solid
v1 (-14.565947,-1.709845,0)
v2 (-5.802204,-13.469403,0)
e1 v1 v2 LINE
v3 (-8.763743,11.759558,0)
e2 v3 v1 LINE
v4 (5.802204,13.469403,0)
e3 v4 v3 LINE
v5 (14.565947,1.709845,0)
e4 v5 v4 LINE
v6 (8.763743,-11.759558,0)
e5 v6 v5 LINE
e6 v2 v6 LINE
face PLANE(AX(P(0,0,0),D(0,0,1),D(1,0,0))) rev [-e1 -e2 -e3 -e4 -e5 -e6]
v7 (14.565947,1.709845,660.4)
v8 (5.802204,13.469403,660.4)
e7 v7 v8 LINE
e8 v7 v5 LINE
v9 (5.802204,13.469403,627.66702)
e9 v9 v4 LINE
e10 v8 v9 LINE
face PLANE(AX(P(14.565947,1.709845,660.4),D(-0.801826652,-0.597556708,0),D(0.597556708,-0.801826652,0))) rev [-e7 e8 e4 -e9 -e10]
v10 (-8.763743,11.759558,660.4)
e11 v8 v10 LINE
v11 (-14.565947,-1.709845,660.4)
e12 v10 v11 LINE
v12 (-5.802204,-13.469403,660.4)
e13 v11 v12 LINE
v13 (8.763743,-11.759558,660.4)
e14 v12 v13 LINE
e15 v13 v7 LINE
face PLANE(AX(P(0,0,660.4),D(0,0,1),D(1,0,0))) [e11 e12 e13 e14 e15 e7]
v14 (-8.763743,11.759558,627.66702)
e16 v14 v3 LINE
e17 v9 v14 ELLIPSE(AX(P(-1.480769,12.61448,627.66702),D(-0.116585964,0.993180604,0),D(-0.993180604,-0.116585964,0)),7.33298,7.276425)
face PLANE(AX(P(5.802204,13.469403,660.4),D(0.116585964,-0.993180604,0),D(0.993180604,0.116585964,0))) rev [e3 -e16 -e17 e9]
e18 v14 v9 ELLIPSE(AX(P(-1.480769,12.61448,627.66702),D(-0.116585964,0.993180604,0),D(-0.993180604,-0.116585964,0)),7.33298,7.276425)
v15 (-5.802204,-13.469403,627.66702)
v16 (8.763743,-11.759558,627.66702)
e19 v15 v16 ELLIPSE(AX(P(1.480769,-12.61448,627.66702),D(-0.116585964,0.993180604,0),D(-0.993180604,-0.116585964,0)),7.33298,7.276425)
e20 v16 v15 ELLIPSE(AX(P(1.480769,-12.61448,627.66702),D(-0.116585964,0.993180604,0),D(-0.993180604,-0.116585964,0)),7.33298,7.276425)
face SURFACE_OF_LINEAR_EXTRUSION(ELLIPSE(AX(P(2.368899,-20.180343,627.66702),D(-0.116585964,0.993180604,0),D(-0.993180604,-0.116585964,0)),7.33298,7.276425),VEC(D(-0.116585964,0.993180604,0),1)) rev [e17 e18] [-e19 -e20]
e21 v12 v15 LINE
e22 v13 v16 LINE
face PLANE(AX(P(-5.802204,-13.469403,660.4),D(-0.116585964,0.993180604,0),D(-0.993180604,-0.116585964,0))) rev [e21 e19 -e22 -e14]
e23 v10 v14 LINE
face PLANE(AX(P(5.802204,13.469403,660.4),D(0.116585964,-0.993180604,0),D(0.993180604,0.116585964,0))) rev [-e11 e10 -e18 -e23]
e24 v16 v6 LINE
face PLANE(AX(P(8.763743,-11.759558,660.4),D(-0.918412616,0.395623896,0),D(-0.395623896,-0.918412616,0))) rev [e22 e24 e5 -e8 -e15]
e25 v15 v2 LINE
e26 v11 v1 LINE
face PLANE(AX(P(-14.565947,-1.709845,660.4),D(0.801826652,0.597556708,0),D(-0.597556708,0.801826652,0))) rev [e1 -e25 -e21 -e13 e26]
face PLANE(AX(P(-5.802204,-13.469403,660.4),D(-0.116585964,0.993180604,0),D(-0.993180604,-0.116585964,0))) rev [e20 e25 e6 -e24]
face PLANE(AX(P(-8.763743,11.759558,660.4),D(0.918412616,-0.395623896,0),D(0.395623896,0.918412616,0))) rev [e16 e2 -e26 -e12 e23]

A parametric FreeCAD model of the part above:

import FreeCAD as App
import Part
import Sketcher

V = App.Vector
Q = App.Units.Quantity

doc = App.newDocument("Part")
body = doc.addObject("PartDesign::Body", "Body")

sketch1 = body.newObject("Sketcher::SketchObject", "Sketch")
sketch1.AttachmentSupport = (doc.getObject("XY_Plane"), [""])
sketch1.MapMode = "FlatFace"
sketch1.addGeometry([
    Part.LineSegment(V(6, 13, 0), V(-9, 12, 0)),
    Part.LineSegment(V(-9, 12, 0), V(-15, -2, 0)),
    Part.LineSegment(V(-15, -2, 0), V(-6, -13, 0)),
    Part.LineSegment(V(-6, -13, 0), V(9, -12, 0)),
    Part.LineSegment(V(9, -12, 0), V(15, 2, 0)),
    Part.LineSegment(V(15, 2, 0), V(6, 13, 0)),
], False)
sketch1.addConstraint([
    Sketcher.Constraint("Coincident", 0, 2, 1, 1),
    Sketcher.Constraint("Coincident", 1, 2, 2, 1),
    Sketcher.Constraint("Coincident", 2, 2, 3, 1),
    Sketcher.Constraint("Coincident", 3, 2, 4, 1),
    Sketcher.Constraint("Coincident", 4, 2, 5, 1),
    Sketcher.Constraint("Coincident", 5, 2, 0, 1),
    Sketcher.Constraint("Symmetric", 0, 2, 3, 2, -1, 1),
    Sketcher.Constraint("Symmetric", 1, 2, 4, 2, -1, 1),
    Sketcher.Constraint("Symmetric", 2, 2, 5, 2, -1, 1),
    Sketcher.Constraint("Equal", 0, 1),
    Sketcher.Constraint("Equal", 1, 2),
    Sketcher.Constraint("Distance", 0, Q("0.5774 in")),
    Sketcher.Constraint("DistanceX", 0, 2, 2, 2, Q("2.961539 mm")),
    Sketcher.Constraint("DistanceY", 2, 2, 0, 2, Q("25.22896 mm")),
    Sketcher.Constraint("DistanceX", 1, 2, 3, 2, Q("23.32969 mm")),
])
pad1 = body.newObject("PartDesign::Pad", "Pad")
pad1.Profile = sketch1
pad1.Length = Q("26 in")

sketch2 = body.newObject("Sketcher::SketchObject", "Sketch001")
sketch2.Placement = App.Placement(V(-1.480769, 12.61448, 0), App.Rotation(V(0.993180604, 0.116585964, 0), V(0, 0, -0.999999999), V(-0.116585964, 0.993180604, 0), "ZXY"))
sketch2.addGeometry(Part.Ellipse(V(-7.33298, -627.667019, 0), V(0, -634.943444, 0), V(0, -627.667019, 0)), False)
sketch2.addConstraint(Sketcher.Constraint("Block", 0))
pocket1 = body.newObject("PartDesign::Pocket", "Pocket")
pocket1.Profile = sketch2
pocket1.Length = Q("1.3 in")

doc.recompute()
